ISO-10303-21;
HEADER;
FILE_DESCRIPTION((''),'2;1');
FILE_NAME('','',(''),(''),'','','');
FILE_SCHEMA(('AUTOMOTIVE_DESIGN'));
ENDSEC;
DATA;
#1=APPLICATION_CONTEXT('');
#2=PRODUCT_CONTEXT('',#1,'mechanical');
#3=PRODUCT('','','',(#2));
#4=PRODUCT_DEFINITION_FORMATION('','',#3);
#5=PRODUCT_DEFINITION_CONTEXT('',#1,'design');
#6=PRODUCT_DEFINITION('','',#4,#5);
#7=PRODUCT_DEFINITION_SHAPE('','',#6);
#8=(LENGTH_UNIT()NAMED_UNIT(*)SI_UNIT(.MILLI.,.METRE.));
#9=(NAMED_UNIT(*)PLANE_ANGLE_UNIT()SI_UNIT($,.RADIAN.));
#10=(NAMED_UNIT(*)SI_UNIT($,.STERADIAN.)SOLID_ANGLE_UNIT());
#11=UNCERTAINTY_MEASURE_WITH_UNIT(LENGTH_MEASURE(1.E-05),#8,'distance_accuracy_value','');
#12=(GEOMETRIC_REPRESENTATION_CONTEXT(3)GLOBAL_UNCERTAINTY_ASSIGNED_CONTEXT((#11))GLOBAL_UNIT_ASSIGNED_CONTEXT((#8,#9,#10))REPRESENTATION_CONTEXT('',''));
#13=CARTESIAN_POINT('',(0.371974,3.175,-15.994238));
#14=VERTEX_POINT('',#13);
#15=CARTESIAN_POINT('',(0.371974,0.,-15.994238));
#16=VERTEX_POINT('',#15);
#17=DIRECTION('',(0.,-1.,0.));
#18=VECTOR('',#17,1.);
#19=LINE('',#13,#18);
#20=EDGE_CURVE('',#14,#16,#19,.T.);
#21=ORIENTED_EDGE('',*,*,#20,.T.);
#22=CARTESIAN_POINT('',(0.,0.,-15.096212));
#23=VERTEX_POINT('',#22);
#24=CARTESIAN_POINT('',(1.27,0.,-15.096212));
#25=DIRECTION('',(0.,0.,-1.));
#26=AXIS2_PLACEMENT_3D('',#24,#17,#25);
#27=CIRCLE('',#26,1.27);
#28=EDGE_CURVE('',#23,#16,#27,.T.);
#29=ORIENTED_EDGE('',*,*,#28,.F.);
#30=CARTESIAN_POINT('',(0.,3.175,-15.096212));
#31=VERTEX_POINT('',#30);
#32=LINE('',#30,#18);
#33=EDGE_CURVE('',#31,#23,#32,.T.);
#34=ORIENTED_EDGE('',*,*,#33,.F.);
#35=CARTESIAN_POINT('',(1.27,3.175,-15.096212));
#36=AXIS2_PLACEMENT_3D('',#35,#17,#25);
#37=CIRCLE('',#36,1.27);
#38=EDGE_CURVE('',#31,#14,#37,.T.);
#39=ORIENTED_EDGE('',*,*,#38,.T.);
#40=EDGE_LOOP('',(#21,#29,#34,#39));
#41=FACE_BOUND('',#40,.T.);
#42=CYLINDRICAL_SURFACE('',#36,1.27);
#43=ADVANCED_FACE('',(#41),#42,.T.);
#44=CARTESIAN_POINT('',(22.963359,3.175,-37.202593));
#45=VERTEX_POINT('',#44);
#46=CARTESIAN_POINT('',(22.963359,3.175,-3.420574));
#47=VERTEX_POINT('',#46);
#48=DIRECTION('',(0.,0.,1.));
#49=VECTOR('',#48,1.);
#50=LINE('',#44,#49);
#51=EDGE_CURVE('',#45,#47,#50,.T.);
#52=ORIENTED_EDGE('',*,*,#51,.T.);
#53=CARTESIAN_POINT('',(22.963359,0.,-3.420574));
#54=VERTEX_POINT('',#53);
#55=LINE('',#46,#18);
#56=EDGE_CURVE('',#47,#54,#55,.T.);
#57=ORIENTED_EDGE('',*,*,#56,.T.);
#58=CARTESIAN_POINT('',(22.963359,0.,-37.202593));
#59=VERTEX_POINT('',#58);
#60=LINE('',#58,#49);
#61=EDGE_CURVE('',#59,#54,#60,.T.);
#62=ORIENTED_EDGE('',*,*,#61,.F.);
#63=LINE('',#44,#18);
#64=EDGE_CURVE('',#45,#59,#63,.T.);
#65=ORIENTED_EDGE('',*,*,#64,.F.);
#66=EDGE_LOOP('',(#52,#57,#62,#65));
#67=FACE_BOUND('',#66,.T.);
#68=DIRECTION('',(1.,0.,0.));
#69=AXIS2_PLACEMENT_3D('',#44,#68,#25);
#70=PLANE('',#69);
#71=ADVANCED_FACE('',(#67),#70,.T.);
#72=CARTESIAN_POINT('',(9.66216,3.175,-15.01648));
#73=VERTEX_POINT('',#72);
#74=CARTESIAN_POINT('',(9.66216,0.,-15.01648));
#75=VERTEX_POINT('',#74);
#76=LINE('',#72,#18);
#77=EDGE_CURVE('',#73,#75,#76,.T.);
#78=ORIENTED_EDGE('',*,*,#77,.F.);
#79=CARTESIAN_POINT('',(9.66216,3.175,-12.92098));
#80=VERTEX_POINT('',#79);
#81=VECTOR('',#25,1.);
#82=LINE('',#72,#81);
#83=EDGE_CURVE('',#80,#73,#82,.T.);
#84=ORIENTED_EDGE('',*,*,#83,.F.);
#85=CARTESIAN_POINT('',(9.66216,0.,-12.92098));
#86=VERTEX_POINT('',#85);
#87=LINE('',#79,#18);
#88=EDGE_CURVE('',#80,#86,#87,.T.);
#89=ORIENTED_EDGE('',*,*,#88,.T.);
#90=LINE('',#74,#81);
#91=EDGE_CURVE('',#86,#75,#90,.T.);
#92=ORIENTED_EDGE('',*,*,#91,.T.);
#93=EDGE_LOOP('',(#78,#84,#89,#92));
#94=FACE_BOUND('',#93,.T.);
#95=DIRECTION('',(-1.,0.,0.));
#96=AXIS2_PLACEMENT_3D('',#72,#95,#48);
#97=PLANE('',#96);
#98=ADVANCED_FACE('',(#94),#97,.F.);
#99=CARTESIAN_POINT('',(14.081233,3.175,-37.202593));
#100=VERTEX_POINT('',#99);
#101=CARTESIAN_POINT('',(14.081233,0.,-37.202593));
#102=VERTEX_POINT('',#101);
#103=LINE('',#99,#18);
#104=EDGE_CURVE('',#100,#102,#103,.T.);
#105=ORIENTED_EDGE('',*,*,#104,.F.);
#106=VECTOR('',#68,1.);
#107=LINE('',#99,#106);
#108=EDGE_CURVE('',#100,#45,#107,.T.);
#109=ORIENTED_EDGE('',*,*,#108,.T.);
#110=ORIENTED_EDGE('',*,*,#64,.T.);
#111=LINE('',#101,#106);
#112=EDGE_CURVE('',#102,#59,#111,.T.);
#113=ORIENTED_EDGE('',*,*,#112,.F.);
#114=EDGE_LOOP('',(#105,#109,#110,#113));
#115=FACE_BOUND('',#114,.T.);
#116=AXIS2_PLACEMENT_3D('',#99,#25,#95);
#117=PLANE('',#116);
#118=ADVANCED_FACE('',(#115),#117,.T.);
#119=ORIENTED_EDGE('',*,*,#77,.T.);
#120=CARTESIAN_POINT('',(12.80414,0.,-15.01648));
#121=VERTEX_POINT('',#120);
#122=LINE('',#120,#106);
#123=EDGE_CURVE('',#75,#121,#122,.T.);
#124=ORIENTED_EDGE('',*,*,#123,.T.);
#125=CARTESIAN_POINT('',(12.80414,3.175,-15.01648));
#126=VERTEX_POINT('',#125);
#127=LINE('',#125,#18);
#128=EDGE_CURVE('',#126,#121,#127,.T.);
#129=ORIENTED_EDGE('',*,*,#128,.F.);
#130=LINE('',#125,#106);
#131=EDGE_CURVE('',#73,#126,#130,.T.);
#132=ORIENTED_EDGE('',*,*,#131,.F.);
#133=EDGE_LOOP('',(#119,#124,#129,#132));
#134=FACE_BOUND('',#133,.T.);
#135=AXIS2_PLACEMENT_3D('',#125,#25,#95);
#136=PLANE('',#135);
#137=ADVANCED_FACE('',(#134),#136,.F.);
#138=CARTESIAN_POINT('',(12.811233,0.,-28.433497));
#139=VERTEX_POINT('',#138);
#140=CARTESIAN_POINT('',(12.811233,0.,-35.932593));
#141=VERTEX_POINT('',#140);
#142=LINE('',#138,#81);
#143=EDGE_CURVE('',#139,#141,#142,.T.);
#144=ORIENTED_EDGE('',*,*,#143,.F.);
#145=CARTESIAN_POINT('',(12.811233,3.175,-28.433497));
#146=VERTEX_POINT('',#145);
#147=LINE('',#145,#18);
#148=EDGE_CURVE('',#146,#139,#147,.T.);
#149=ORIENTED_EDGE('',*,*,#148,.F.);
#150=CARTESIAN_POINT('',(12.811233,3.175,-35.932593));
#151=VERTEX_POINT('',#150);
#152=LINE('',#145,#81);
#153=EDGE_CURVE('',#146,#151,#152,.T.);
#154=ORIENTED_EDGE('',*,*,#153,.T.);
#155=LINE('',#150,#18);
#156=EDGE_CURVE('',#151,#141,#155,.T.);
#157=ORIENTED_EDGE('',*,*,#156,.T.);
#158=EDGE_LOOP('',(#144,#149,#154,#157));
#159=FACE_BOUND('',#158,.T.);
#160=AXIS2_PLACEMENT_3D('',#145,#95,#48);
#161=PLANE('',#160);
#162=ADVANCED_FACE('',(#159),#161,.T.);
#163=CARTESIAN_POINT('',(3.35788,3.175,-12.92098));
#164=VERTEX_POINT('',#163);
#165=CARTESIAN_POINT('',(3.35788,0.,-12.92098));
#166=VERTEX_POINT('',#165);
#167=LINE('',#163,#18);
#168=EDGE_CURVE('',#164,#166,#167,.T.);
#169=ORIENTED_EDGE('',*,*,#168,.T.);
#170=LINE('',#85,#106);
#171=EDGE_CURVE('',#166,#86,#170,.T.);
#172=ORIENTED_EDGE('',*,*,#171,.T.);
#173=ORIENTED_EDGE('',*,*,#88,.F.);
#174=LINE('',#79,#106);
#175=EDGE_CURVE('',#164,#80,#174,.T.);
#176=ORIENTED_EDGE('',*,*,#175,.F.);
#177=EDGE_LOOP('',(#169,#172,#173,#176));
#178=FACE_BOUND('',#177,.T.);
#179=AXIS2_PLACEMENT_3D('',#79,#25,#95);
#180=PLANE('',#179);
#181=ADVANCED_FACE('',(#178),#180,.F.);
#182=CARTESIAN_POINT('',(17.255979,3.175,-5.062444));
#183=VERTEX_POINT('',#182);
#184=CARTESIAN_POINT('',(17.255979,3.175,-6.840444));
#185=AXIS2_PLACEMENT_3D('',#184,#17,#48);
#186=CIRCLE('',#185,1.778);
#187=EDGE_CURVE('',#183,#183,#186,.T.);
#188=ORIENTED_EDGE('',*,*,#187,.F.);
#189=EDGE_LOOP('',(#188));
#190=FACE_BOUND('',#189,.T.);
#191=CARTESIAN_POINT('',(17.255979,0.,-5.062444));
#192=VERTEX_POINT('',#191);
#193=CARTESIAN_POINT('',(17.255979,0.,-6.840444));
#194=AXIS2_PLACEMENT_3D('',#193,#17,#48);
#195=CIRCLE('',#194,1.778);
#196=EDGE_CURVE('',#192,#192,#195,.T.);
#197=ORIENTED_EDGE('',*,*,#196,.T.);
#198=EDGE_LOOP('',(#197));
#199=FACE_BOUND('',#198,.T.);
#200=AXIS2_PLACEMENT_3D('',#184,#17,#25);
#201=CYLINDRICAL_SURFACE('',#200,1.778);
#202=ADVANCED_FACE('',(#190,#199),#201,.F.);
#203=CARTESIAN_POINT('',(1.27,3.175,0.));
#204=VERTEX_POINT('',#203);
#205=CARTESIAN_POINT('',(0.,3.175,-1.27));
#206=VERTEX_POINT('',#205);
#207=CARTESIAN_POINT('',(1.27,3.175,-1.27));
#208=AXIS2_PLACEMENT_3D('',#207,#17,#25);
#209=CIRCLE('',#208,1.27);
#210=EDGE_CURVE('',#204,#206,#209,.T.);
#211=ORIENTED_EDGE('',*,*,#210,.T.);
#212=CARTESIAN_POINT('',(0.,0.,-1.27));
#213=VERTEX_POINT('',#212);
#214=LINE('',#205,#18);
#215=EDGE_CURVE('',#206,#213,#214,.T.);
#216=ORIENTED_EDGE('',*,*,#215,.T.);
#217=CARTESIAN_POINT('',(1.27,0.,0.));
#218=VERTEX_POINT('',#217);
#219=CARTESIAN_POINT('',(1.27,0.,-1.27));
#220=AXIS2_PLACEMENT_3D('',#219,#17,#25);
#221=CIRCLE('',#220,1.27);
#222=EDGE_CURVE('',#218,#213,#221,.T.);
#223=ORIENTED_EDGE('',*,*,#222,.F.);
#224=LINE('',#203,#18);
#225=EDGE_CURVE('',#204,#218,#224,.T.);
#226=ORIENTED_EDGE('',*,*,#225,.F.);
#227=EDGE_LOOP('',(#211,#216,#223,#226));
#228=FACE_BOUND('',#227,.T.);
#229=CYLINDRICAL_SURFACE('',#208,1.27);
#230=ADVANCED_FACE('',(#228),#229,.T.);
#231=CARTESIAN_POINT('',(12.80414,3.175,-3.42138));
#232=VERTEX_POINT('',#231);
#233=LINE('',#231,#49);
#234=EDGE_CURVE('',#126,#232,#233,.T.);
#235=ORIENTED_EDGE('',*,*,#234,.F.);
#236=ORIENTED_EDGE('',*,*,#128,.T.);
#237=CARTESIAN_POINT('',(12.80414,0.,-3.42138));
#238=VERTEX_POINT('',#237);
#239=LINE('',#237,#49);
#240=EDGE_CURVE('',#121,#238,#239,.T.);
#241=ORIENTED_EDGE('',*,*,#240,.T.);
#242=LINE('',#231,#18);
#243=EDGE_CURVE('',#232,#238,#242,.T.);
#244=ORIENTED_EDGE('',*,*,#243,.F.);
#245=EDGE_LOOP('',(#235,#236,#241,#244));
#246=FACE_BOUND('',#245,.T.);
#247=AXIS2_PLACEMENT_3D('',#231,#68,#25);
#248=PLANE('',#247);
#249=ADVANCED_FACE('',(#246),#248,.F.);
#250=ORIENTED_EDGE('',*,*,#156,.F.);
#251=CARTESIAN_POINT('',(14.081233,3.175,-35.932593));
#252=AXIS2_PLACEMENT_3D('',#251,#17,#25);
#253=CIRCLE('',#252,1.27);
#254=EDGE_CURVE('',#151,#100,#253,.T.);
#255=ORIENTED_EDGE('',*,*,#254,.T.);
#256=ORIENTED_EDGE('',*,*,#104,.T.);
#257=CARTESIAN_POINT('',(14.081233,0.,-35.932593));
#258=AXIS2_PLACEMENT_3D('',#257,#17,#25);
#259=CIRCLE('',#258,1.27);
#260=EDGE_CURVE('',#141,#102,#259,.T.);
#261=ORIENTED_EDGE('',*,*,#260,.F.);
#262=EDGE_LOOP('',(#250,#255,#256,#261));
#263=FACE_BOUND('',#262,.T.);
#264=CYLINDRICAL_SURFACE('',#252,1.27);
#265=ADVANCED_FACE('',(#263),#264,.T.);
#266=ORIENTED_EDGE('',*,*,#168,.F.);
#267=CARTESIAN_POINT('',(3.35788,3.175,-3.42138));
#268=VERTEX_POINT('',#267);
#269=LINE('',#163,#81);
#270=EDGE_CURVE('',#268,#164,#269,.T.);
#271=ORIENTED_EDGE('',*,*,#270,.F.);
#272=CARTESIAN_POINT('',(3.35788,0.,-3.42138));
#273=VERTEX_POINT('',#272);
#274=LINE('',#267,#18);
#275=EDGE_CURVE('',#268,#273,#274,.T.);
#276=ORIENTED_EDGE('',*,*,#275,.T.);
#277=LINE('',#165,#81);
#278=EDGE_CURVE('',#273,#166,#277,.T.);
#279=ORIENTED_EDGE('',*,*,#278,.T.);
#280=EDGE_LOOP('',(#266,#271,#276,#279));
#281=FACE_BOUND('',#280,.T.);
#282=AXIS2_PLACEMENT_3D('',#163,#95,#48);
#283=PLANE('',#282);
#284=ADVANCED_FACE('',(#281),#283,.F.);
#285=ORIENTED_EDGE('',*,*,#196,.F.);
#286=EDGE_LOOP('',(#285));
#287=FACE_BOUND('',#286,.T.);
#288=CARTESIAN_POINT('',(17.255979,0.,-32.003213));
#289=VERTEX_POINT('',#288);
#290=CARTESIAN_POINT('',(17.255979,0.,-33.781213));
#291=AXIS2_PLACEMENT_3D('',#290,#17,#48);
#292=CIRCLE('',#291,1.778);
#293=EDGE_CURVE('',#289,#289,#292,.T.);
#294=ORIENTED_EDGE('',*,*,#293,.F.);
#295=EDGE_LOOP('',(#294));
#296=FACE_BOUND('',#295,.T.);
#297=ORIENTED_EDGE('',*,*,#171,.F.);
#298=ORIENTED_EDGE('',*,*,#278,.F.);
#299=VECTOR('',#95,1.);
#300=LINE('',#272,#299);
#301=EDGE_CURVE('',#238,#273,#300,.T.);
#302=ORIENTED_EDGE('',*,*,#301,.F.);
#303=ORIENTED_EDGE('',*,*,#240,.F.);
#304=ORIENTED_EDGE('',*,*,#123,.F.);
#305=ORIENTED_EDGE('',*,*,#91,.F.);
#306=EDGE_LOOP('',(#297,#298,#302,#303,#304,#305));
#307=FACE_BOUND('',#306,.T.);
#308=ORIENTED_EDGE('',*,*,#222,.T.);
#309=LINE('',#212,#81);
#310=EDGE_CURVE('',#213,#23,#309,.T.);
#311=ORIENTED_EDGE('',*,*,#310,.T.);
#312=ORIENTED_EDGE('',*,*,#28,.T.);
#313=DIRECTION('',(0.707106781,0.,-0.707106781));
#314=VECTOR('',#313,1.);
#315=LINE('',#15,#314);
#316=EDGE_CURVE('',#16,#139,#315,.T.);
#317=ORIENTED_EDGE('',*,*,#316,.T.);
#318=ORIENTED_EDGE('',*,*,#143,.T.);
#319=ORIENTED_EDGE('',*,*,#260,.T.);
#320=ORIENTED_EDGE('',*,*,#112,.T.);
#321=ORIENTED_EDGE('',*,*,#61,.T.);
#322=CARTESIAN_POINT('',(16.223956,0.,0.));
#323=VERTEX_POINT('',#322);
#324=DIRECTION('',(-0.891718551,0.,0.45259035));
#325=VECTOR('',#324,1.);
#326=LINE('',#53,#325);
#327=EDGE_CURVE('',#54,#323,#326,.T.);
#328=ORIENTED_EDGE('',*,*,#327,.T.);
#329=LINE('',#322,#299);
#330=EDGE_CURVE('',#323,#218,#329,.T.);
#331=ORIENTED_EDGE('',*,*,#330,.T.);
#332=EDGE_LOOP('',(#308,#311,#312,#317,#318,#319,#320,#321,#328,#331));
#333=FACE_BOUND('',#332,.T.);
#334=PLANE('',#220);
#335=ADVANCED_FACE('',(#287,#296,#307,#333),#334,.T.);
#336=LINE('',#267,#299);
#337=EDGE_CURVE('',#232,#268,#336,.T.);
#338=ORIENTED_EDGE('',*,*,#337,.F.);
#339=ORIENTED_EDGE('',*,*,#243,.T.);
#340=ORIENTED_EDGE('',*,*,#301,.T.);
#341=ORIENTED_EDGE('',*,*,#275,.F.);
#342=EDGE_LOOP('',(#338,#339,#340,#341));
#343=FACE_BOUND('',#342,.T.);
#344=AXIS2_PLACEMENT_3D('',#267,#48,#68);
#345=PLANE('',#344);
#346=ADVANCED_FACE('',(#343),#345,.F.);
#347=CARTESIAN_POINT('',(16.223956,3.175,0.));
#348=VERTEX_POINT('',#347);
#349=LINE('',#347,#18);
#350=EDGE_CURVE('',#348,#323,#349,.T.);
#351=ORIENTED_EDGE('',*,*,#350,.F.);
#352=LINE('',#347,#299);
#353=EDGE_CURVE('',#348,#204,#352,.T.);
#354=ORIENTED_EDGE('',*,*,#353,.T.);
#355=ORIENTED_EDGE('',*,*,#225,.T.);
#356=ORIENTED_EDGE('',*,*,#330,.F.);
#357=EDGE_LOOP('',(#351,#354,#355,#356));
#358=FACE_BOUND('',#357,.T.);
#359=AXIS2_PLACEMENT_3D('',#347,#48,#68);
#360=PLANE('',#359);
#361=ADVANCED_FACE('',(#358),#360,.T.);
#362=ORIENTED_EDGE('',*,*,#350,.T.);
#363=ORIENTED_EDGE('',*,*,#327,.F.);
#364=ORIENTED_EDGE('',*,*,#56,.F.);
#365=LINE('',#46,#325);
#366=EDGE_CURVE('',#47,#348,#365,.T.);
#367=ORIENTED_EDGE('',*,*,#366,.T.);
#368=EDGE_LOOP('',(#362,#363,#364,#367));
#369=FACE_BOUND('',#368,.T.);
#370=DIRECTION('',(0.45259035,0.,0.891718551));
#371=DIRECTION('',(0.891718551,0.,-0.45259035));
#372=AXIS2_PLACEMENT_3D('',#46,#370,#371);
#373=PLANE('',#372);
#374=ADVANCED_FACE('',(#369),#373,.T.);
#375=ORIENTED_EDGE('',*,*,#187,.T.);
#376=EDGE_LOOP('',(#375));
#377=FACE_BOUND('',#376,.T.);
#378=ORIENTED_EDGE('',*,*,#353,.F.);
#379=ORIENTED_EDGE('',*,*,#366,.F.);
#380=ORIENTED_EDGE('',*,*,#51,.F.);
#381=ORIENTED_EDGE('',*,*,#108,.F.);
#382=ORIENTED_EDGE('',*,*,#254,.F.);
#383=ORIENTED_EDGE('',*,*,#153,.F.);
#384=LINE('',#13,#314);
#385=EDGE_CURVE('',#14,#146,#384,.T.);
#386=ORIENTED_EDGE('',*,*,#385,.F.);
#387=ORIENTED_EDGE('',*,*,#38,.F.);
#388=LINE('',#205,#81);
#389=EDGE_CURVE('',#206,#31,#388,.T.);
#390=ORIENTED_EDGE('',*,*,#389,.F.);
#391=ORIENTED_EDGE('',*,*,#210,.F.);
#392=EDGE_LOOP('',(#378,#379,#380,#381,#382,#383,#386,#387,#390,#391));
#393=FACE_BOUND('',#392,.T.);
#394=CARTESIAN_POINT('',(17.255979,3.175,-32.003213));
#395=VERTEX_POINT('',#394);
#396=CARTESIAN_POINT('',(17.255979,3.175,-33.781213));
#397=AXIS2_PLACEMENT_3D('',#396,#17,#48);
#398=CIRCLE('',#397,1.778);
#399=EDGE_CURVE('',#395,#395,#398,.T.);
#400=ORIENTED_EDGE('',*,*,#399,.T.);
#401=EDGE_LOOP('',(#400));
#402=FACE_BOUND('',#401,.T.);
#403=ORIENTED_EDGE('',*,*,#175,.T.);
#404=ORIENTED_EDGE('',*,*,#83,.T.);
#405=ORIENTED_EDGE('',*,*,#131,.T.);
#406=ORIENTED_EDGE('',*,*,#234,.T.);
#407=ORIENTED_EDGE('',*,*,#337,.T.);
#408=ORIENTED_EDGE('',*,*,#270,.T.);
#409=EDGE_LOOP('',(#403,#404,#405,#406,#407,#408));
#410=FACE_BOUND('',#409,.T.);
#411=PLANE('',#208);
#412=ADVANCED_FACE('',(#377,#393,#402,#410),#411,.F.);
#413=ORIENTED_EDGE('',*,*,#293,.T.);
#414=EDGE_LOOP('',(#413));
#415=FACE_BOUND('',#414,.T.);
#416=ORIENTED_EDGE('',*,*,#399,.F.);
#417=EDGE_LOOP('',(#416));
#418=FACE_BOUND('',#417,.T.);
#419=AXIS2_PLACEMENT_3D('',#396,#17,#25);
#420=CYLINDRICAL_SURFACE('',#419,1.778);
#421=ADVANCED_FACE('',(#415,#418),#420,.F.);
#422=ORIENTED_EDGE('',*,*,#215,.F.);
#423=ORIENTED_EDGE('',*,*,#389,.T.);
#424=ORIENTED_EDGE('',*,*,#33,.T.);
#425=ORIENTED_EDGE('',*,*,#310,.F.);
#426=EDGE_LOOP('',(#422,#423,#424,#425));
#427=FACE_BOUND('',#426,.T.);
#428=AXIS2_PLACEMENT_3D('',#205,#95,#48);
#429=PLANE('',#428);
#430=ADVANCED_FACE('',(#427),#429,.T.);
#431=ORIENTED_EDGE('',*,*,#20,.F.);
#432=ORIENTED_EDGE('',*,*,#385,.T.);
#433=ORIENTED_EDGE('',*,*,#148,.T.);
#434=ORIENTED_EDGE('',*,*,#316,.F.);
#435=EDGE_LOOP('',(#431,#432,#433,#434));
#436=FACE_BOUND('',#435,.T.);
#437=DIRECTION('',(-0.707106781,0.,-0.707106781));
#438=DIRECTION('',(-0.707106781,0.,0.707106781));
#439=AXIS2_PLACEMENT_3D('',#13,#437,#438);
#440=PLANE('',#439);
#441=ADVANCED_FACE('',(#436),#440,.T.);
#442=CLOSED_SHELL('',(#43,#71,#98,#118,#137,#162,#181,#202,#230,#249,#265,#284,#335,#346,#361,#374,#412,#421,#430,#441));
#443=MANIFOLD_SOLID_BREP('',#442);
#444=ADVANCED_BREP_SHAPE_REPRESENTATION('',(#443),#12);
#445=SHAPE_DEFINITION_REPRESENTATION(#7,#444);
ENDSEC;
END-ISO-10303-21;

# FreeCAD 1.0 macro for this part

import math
import FreeCAD as App
import Part
import Sketcher

V = App.Vector
Q = App.Units.Quantity

doc = App.newDocument("Part")
body = doc.addObject("PartDesign::Body", "Body")

# Sketch on XZ plane
sketch1 = doc.addObject("Sketcher::SketchObject", "Sketch")
body.addObject(sketch1)
sketch1.AttachmentSupport = (doc.XZ_Plane, [""])
sketch1.MapMode = "FlatFace"
sketch1.addGeometry([
    Part.LineSegment(V(0, -1.3, 0), V(0, -15.1, 0)),  # 0
    Part.ArcOfCircle(Part.Circle(V(1.3, -15.1, 0), V(0, 0, 1), 1.3), math.radians(180), math.radians(225)),  # 1
    Part.LineSegment(V(0.4, -16, 0), V(12.8, -28.4, 0)),  # 2
    Part.LineSegment(V(12.8, -28.4, 0), V(12.8, -35.9, 0)),  # 3
    Part.ArcOfCircle(Part.Circle(V(14.1, -35.9, 0), V(0, 0, 1), 1.3), math.radians(180), math.radians(270)),  # 4
    Part.LineSegment(V(14.1, -37.2, 0), V(23, -37.2, 0)),  # 5
    Part.LineSegment(V(23, -37.2, 0), V(23, -3.4, 0)),  # 6
    Part.LineSegment(V(23, -3.4, 0), V(16.2, 0, 0)),  # 7
    Part.LineSegment(V(16.2, 0, 0), V(1.3, 0, 0)),  # 8
    Part.ArcOfCircle(Part.Circle(V(1.3, -1.3, 0), V(0, 0, 1), 1.3), math.radians(90), math.radians(180)),  # 9
    Part.Circle(V(17.3, -33.8, 0), V(0, 0, 1), 1.8),  # 10
    Part.LineSegment(V(9.7, -15, 0), V(9.7, -12.9, 0)),  # 11
    Part.LineSegment(V(9.7, -12.9, 0), V(3.4, -12.9, 0)),  # 12
    Part.LineSegment(V(3.4, -12.9, 0), V(3.4, -3.4, 0)),  # 13
    Part.LineSegment(V(3.4, -3.4, 0), V(12.8, -3.4, 0)),  # 14
    Part.LineSegment(V(12.8, -3.4, 0), V(12.8, -15, 0)),  # 15
    Part.LineSegment(V(12.8, -15, 0), V(9.7, -15, 0)),  # 16
    Part.Circle(V(17.3, -6.8, 0), V(0, 0, 1), 1.8),  # 17
], False)
sketch1.addConstraint([
    Sketcher.Constraint("Tangent", 0, 2, 1, 1),
    Sketcher.Constraint("Tangent", 1, 2, 2, 1),
    Sketcher.Constraint("Coincident", 2, 2, 3, 1),
    Sketcher.Constraint("Tangent", 3, 2, 4, 1),
    Sketcher.Constraint("Tangent", 4, 2, 5, 1),
    Sketcher.Constraint("Coincident", 5, 2, 6, 1),
    Sketcher.Constraint("Coincident", 6, 2, 7, 1),
    Sketcher.Constraint("Coincident", 7, 2, 8, 1),
    Sketcher.Constraint("Tangent", 8, 2, 9, 1),
    Sketcher.Constraint("Tangent", 9, 2, 0, 1),
    Sketcher.Constraint("Coincident", 11, 2, 12, 1),
    Sketcher.Constraint("Coincident", 12, 2, 13, 1),
    Sketcher.Constraint("Coincident", 13, 2, 14, 1),
    Sketcher.Constraint("Coincident", 14, 2, 15, 1),
    Sketcher.Constraint("Coincident", 15, 2, 16, 1),
    Sketcher.Constraint("Coincident", 16, 2, 11, 1),
    Sketcher.Constraint("Vertical", 0),
    Sketcher.Constraint("Vertical", 3),
    Sketcher.Constraint("Horizontal", 5),
    Sketcher.Constraint("Vertical", 6),
    Sketcher.Constraint("Horizontal", 8),
    Sketcher.Constraint("Vertical", 11),
    Sketcher.Constraint("Horizontal", 12),
    Sketcher.Constraint("Vertical", 13),
    Sketcher.Constraint("Horizontal", 14),
    Sketcher.Constraint("Vertical", 15),
    Sketcher.Constraint("Horizontal", 16),
    Sketcher.Constraint("Equal", 1, 4),
    Sketcher.Constraint("Equal", 4, 9),
    Sketcher.Constraint("Equal", 10, 17),
    Sketcher.Constraint("PointOnObject", 0, 2, -2),
    Sketcher.Constraint("PointOnObject", 7, 2, -1),
    Sketcher.Constraint("Vertical", 10, 3, 17, 3),
    Sketcher.Constraint("Diameter", 10, Q("0.14 in")),
    Sketcher.Constraint("Radius", 1, Q("0.05 in")),
    Sketcher.Constraint("Angle", 2, Q("-45 deg")),
    Sketcher.Constraint("DistanceY", 13, 1, 13, 2, Q("0.374 in")),
    Sketcher.Constraint("Angle", 7, Q("153.09 deg")),
    Sketcher.Constraint("DistanceX", 12, 2, 12, 1, Q("0.2482 in")),
    Sketcher.Constraint("DistanceX", 14, 1, 14, 2, Q("0.3719 in")),
    Sketcher.Constraint("DistanceY", 11, 1, 11, 2, Q("0.0825 in")),
    Sketcher.Constraint("DistanceX", -1, 1, 11, 2, Q("0.3804 in")),
    Sketcher.Constraint("DistanceY", 11, 2, -1, 1, Q("0.5087 in")),
    Sketcher.Constraint("DistanceY", 4, 3, 10, 3, Q("0.0847 in")),
    Sketcher.Constraint("DistanceX", 10, 3, 5, 2, Q("0.2247 in")),
    Sketcher.Constraint("DistanceY", 0, 2, 0, 1, Q("13.826212 mm")),
    Sketcher.Constraint("DistanceY", 6, 1, 6, 2, Q("33.782019 mm")),
    Sketcher.Constraint("DistanceY", 10, 3, 1, 3, Q("18.685001 mm")),
    Sketcher.Constraint("Distance", 2, Q("17.591769 mm")),
    Sketcher.Constraint("DistanceX", 5, 1, 5, 2, Q("8.882126 mm")),
    Sketcher.Constraint("DistanceY", 10, 3, 17, 3, Q("26.940768 mm")),
])
pad1 = doc.addObject("PartDesign::Pad", "Pad")
body.addObject(pad1)
pad1.Profile = sketch1
pad1.Length = Q("0.125 in")
pad1.Reversed = True

doc.recompute()
